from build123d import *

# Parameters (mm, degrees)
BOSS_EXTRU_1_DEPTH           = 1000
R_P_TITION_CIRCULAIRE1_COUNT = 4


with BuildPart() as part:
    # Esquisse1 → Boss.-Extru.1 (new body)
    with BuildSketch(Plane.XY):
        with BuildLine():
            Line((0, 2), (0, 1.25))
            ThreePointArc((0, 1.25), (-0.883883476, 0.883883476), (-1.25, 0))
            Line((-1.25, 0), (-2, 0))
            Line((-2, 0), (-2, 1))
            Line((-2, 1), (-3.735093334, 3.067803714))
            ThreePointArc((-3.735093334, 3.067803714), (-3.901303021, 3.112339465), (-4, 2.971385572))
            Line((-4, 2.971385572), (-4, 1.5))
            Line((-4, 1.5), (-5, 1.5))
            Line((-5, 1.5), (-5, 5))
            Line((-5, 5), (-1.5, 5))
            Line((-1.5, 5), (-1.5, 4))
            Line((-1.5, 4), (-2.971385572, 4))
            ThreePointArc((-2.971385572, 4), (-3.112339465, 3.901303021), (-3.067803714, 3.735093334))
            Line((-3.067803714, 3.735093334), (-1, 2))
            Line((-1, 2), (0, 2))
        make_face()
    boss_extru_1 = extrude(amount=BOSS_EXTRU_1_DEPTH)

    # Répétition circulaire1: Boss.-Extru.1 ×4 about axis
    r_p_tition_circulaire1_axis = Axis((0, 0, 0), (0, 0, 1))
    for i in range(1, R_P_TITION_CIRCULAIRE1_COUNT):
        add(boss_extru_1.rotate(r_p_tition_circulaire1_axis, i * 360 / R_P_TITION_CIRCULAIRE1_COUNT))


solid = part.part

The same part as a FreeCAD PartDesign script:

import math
import FreeCAD as App
import Part
import Sketcher
Q = App.Units.Quantity

doc = App.newDocument("Part")
body = doc.addObject("PartDesign::Body", "Body")

sketch1 = body.newObject("Sketcher::SketchObject", "Sketch")
sketch1.AttachmentSupport = (doc.getObject("XY_Plane"), [""])
sketch1.MapMode = "FlatFace"
sketch1.addGeometry(Part.LineSegment(App.Vector(0, 1.25, 0), App.Vector(0, 2, 0)), False)
sketch1.addGeometry(Part.LineSegment(App.Vector(0, 2, 0), App.Vector(-1, 2, 0)), False)
sketch1.addGeometry(Part.LineSegment(App.Vector(-1, 2, 0), App.Vector(-3.067804, 3.735093, 0)), False)
sketch1.addGeometry(Part.ArcOfCircle(Part.Circle(App.Vector(-2.971386, 3.85, 0), App.Vector(0, 0, 1), 0.15), math.radians(90), math.radians(230)), False)
sketch1.addGeometry(Part.LineSegment(App.Vector(-2.971386, 4, 0), App.Vector(-1.5, 4, 0)), False)
sketch1.addGeometry(Part.LineSegment(App.Vector(-1.5, 4, 0), App.Vector(-1.5, 5, 0)), False)
sketch1.addGeometry(Part.LineSegment(App.Vector(-1.5, 5, 0), App.Vector(-5, 5, 0)), False)
sketch1.addGeometry(Part.LineSegment(App.Vector(-5, 5, 0), App.Vector(-5, 1.5, 0)), False)
sketch1.addGeometry(Part.LineSegment(App.Vector(-5, 1.5, 0), App.Vector(-4, 1.5, 0)), False)
sketch1.addGeometry(Part.LineSegment(App.Vector(-4, 1.5, 0), App.Vector(-4, 2.971386, 0)), False)
sketch1.addGeometry(Part.ArcOfCircle(Part.Circle(App.Vector(-3.85, 2.971386, 0), App.Vector(0, 0, 1), 0.15), math.radians(40), math.radians(180)), False)
sketch1.addGeometry(Part.LineSegment(App.Vector(-3.735093, 3.067804, 0), App.Vector(-2, 1, 0)), False)
sketch1.addGeometry(Part.LineSegment(App.Vector(-2, 1, 0), App.Vector(-2, 0, 0)), False)
sketch1.addGeometry(Part.LineSegment(App.Vector(-2, 0, 0), App.Vector(-1.25, 0, 0)), False)
sketch1.addGeometry(Part.ArcOfCircle(Part.Circle(App.Vector(0, 0, 0), App.Vector(0, 0, 1), 1.25), math.radians(90), math.radians(180)), False)
sketch1.addConstraint(Sketcher.Constraint("Coincident", 0, 2, 1, 1))
sketch1.addConstraint(Sketcher.Constraint("Coincident", 1, 2, 2, 1))
sketch1.addConstraint(Sketcher.Constraint("Tangent", 2, 2, 3, 2))
sketch1.addConstraint(Sketcher.Constraint("Tangent", 3, 1, 4, 1))
sketch1.addConstraint(Sketcher.Constraint("Coincident", 4, 2, 5, 1))
sketch1.addConstraint(Sketcher.Constraint("Coincident", 5, 2, 6, 1))
sketch1.addConstraint(Sketcher.Constraint("Coincident", 6, 2, 7, 1))
sketch1.addConstraint(Sketcher.Constraint("Coincident", 7, 2, 8, 1))
sketch1.addConstraint(Sketcher.Constraint("Coincident", 8, 2, 9, 1))
sketch1.addConstraint(Sketcher.Constraint("Tangent", 9, 2, 10, 2))
sketch1.addConstraint(Sketcher.Constraint("Tangent", 10, 1, 11, 1))
sketch1.addConstraint(Sketcher.Constraint("Coincident", 11, 2, 12, 1))
sketch1.addConstraint(Sketcher.Constraint("Coincident", 12, 2, 13, 1))
sketch1.addConstraint(Sketcher.Constraint("Coincident", 13, 2, 14, 2))
sketch1.addConstraint(Sketcher.Constraint("Coincident", 14, 1, 0, 1))
sketch1.addConstraint(Sketcher.Constraint("Vertical", 0))
sketch1.addConstraint(Sketcher.Constraint("Horizontal", 1))
sketch1.addConstraint(Sketcher.Constraint("Horizontal", 4))
sketch1.addConstraint(Sketcher.Constraint("Vertical", 5))
sketch1.addConstraint(Sketcher.Constraint("Horizontal", 6))
sketch1.addConstraint(Sketcher.Constraint("Vertical", 7))
sketch1.addConstraint(Sketcher.Constraint("Horizontal", 8))
sketch1.addConstraint(Sketcher.Constraint("Vertical", 9))
sketch1.addConstraint(Sketcher.Constraint("Vertical", 12))
sketch1.addConstraint(Sketcher.Constraint("Horizontal", 13))
sketch1.addConstraint(Sketcher.Constraint("Coincident", 14, 3, -1, 1))
sketch1.addConstraint(Sketcher.Constraint("Equal", 3, 10))
sketch1.addConstraint(Sketcher.Constraint("PointOnObject", 0, 2, -2))
sketch1.addConstraint(Sketcher.Constraint("PointOnObject", 12, 2, -1))
sketch1.addConstraint(Sketcher.Constraint("Equal", 1, 8))
sketch1.addConstraint(Sketcher.Constraint("Equal", 13, 0))
sketch1.addConstraint(Sketcher.Constraint("Equal", 8, 5))
sketch1.addConstraint(Sketcher.Constraint("Equal", 6, 7))
sketch1.addConstraint(Sketcher.Constraint("Equal", 4, 9))
sketch1.addConstraint(Sketcher.Constraint("Equal", 5, 12))
sketch1.addConstraint(Sketcher.Constraint("Equal", 2, 11))
sketch1.addConstraint(Sketcher.Constraint("DistanceX", 1, 2, 1, 1, Q("1 mm")))
sketch1.addConstraint(Sketcher.Constraint("Angle", 2, Q("140 deg")))
sketch1.addConstraint(Sketcher.Constraint("Radius", 3, Q("0.15 mm")))
sketch1.addConstraint(Sketcher.Constraint("Radius", 14, Q("1.25 mm")))
sketch1.addConstraint(Sketcher.Constraint("DistanceX", 6, 2, 6, 1, Q("3.5 mm")))
sketch1.addConstraint(Sketcher.Constraint("DistanceY", -1, 1, 0, 2, Q("2 mm")))
sketch1.addConstraint(Sketcher.Constraint("DistanceY", -1, 1, 3, 1, Q("4 mm")))
pad1 = body.newObject("PartDesign::Pad", "Pad")
pad1.Profile = sketch1
pad1.Length = 1000
doc.recompute()

polarpattern = body.newObject("PartDesign::PolarPattern", "PolarPattern")
polarpattern.Originals = [pad1]
polarpattern.Axis = (doc.getObject("Z_Axis"), [""])
polarpattern.Angle = 360
polarpattern.Occurrences = 4
body.Tip = polarpattern

doc.recompute()
